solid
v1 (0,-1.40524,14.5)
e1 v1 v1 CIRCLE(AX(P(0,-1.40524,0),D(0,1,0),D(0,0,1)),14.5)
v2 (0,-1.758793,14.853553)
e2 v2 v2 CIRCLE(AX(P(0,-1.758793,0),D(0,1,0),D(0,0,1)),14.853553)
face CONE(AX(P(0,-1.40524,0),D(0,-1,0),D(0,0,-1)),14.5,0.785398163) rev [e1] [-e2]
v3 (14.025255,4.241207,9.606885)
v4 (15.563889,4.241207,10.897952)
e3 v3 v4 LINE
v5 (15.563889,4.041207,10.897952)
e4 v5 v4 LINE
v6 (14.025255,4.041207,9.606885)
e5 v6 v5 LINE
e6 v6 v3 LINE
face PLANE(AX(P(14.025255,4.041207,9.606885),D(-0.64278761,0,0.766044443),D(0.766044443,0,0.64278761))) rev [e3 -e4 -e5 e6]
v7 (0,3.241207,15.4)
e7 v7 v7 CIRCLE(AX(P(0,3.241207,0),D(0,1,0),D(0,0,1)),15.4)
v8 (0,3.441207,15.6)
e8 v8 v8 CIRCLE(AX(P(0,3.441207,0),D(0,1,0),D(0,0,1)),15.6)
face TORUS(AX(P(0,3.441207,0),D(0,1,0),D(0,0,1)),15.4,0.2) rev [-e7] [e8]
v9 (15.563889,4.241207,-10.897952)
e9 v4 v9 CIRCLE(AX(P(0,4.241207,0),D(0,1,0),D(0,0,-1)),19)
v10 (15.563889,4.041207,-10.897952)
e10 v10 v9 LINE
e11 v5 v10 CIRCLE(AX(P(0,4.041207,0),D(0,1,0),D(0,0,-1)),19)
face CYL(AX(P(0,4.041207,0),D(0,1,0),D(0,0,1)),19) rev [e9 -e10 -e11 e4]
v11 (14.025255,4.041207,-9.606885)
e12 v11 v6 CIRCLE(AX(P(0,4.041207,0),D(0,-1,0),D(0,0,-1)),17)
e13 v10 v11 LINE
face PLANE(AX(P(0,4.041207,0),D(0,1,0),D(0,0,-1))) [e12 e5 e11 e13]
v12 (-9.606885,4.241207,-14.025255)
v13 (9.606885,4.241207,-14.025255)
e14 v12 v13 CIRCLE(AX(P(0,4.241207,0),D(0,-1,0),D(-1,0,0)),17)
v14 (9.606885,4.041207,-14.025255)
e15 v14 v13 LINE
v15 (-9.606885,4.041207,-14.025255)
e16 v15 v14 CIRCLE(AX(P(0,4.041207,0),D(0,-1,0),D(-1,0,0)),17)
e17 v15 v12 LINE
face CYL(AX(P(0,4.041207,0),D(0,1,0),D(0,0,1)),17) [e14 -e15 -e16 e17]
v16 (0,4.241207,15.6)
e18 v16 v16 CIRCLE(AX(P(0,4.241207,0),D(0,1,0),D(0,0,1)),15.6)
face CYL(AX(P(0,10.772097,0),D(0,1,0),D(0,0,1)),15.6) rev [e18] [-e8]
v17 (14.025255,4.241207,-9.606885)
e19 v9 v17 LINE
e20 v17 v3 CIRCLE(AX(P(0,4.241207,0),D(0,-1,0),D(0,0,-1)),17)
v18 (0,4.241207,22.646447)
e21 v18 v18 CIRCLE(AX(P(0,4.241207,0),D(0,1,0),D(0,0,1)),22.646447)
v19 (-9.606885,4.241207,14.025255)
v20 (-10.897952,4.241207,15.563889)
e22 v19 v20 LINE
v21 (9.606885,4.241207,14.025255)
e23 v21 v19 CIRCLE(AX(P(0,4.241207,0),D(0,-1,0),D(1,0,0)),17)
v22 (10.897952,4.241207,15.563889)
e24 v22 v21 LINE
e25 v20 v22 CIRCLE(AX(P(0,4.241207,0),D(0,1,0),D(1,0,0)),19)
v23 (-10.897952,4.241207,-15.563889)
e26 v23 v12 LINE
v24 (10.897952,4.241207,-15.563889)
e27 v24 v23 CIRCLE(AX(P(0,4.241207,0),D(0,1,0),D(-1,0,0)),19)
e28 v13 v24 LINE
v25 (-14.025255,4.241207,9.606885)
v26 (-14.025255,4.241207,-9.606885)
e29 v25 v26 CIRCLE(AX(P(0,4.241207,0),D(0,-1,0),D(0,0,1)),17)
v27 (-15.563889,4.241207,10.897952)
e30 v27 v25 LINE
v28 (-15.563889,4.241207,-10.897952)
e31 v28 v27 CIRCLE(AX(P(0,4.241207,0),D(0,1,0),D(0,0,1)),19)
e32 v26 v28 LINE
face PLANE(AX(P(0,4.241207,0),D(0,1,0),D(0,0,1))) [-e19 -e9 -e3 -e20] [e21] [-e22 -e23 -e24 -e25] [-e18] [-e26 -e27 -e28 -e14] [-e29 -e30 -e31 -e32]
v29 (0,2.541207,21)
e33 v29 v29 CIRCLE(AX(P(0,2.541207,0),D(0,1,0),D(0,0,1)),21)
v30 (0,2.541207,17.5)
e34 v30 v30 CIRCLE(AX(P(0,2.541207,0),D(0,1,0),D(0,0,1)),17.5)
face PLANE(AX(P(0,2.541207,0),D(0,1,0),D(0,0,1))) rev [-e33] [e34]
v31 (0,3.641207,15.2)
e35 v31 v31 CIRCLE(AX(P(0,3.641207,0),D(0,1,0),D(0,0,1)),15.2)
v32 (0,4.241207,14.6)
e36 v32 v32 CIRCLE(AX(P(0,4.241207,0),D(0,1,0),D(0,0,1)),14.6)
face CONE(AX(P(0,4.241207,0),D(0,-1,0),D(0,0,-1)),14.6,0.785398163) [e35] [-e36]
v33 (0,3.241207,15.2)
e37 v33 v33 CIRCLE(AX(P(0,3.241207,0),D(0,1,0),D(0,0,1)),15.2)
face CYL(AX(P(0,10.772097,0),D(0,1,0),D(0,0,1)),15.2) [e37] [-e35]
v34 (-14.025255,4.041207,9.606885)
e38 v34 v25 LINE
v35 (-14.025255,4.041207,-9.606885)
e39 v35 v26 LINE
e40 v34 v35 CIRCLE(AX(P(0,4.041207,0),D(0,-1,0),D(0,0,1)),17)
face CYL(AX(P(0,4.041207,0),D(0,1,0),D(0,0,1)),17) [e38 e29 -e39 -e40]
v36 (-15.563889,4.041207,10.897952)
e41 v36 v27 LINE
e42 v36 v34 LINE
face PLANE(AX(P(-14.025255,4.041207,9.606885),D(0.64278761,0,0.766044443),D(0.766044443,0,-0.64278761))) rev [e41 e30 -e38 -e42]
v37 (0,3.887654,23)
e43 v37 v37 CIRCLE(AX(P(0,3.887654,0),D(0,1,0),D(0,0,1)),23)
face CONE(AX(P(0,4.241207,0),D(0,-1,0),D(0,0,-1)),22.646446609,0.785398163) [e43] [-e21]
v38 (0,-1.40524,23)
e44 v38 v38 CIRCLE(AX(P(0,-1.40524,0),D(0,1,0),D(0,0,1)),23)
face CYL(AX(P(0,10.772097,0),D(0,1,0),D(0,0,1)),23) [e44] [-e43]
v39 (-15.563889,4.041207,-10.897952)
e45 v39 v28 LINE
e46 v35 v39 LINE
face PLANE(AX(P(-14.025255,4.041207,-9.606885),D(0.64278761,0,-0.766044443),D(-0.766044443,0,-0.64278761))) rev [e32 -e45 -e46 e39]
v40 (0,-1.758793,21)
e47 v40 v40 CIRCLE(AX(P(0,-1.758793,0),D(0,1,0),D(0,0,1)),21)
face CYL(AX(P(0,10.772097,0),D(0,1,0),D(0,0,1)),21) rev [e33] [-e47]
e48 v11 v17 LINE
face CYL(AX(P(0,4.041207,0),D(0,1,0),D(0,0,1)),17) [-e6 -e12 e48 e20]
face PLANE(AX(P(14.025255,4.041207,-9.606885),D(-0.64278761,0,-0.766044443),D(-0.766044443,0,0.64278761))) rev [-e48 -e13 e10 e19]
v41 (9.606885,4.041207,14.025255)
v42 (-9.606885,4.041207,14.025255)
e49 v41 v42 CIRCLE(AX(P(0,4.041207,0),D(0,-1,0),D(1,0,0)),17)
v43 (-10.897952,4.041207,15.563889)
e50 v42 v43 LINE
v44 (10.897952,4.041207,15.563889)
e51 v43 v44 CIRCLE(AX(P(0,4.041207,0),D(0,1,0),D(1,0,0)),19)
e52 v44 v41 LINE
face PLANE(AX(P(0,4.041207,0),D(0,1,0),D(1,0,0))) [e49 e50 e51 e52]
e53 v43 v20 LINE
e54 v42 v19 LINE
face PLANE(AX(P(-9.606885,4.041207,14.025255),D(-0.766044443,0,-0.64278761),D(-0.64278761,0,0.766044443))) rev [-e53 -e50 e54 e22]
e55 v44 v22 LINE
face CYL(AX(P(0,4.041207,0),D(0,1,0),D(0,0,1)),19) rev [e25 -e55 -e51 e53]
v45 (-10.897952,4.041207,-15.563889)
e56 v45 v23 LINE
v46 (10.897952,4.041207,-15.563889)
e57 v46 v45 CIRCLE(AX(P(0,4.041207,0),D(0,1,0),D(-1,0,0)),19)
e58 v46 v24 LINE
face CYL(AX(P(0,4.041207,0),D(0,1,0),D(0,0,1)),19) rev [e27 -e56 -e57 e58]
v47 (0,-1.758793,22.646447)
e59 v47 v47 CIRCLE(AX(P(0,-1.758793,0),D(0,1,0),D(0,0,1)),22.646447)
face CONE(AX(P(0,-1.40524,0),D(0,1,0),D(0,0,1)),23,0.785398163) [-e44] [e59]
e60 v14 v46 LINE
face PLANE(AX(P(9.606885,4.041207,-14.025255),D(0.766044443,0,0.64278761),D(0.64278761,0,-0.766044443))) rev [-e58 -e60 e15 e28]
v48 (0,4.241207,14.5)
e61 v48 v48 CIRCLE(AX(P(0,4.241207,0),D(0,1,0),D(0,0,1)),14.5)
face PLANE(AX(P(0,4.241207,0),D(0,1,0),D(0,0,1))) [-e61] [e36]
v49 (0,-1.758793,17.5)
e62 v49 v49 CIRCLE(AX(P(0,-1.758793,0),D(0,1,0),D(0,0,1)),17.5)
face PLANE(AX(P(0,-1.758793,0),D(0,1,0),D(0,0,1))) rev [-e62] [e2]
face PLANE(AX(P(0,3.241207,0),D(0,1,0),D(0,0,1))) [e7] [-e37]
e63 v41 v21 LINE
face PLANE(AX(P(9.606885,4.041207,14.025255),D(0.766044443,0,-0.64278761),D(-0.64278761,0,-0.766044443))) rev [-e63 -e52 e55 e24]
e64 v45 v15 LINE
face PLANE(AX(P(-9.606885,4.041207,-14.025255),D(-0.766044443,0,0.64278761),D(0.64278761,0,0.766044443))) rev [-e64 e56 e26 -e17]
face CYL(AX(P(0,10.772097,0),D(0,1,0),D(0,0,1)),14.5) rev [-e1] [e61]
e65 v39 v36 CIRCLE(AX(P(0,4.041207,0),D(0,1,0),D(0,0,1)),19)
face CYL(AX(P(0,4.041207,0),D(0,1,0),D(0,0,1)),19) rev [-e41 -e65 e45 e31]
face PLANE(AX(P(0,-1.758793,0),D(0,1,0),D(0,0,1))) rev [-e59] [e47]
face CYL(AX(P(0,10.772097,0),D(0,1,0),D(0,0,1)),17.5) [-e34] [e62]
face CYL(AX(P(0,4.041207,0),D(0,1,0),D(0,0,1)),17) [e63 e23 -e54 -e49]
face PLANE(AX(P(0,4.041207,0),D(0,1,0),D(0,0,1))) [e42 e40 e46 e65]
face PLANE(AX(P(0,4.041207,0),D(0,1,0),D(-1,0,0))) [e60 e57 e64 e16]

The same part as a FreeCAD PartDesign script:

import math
import FreeCAD as App
import Part
import Sketcher
from FreeCAD import Vector
Q = App.Units.Quantity

doc = App.newDocument("Part")
body = doc.addObject("PartDesign::Body", "Body")

# Sketch on XY plane
sketch1 = body.newObject("Sketcher::SketchObject", "Sketch")
sketch1.AttachmentSupport = (doc.getObject("XY_Plane"), [""])
sketch1.MapMode = "FlatFace"
sketch1.addGeometry(Part.ArcOfCircle(Part.Circle(Vector(15.4, 3.44, 0), Vector(0, 0, 1), 0.2), math.radians(-90), math.radians(0)), False)
sketch1.addGeometry(Part.LineSegment(Vector(15.4, 3.24, 0), Vector(15.2, 3.24, 0)), False)
sketch1.addGeometry(Part.LineSegment(Vector(15.2, 3.24, 0), Vector(15.2, 3.64, 0)), False)
sketch1.addGeometry(Part.LineSegment(Vector(15.2, 3.64, 0), Vector(14.6, 4.24, 0)), False)
sketch1.addGeometry(Part.LineSegment(Vector(14.6, 4.24, 0), Vector(14.5, 4.24, 0)), False)
sketch1.addGeometry(Part.LineSegment(Vector(14.5, 4.24, 0), Vector(14.5, -1.41, 0)), False)
sketch1.addGeometry(Part.LineSegment(Vector(14.5, -1.41, 0), Vector(14.85, -1.76, 0)), False)
sketch1.addGeometry(Part.LineSegment(Vector(14.85, -1.76, 0), Vector(17.5, -1.76, 0)), False)
sketch1.addGeometry(Part.LineSegment(Vector(17.5, -1.76, 0), Vector(17.5, 2.54, 0)), False)
sketch1.addGeometry(Part.LineSegment(Vector(17.5, 2.54, 0), Vector(21, 2.54, 0)), False)
sketch1.addGeometry(Part.LineSegment(Vector(21, 2.54, 0), Vector(21, -1.76, 0)), False)
sketch1.addGeometry(Part.LineSegment(Vector(21, -1.76, 0), Vector(22.65, -1.76, 0)), False)
sketch1.addGeometry(Part.LineSegment(Vector(22.65, -1.76, 0), Vector(23, -1.41, 0)), False)
sketch1.addGeometry(Part.LineSegment(Vector(23, -1.41, 0), Vector(23, 3.89, 0)), False)
sketch1.addGeometry(Part.LineSegment(Vector(23, 3.89, 0), Vector(22.65, 4.24, 0)), False)
sketch1.addGeometry(Part.LineSegment(Vector(22.65, 4.24, 0), Vector(15.6, 4.24, 0)), False)
sketch1.addGeometry(Part.LineSegment(Vector(15.6, 4.24, 0), Vector(15.6, 3.44, 0)), False)
sketch1.addConstraint(Sketcher.Constraint("Tangent", 0, 1, 1, 1))
sketch1.addConstraint(Sketcher.Constraint("Coincident", 1, 2, 2, 1))
sketch1.addConstraint(Sketcher.Constraint("Coincident", 2, 2, 3, 1))
sketch1.addConstraint(Sketcher.Constraint("Coincident", 3, 2, 4, 1))
sketch1.addConstraint(Sketcher.Constraint("Coincident", 4, 2, 5, 1))
sketch1.addConstraint(Sketcher.Constraint("Coincident", 5, 2, 6, 1))
sketch1.addConstraint(Sketcher.Constraint("Coincident", 6, 2, 7, 1))
sketch1.addConstraint(Sketcher.Constraint("Coincident", 7, 2, 8, 1))
sketch1.addConstraint(Sketcher.Constraint("Coincident", 8, 2, 9, 1))
sketch1.addConstraint(Sketcher.Constraint("Coincident", 9, 2, 10, 1))
sketch1.addConstraint(Sketcher.Constraint("Coincident", 10, 2, 11, 1))
sketch1.addConstraint(Sketcher.Constraint("Coincident", 11, 2, 12, 1))
sketch1.addConstraint(Sketcher.Constraint("Coincident", 12, 2, 13, 1))
sketch1.addConstraint(Sketcher.Constraint("Coincident", 13, 2, 14, 1))
sketch1.addConstraint(Sketcher.Constraint("Coincident", 14, 2, 15, 1))
sketch1.addConstraint(Sketcher.Constraint("Coincident", 15, 2, 16, 1))
sketch1.addConstraint(Sketcher.Constraint("Tangent", 16, 2, 0, 2))
sketch1.addConstraint(Sketcher.Constraint("Horizontal", 1))
sketch1.addConstraint(Sketcher.Constraint("Vertical", 2))
sketch1.addConstraint(Sketcher.Constraint("Horizontal", 4))
sketch1.addConstraint(Sketcher.Constraint("Vertical", 5))
sketch1.addConstraint(Sketcher.Constraint("Horizontal", 7))
sketch1.addConstraint(Sketcher.Constraint("Vertical", 8))
sketch1.addConstraint(Sketcher.Constraint("Horizontal", 9))
sketch1.addConstraint(Sketcher.Constraint("Vertical", 10))
sketch1.addConstraint(Sketcher.Constraint("Horizontal", 11))
sketch1.addConstraint(Sketcher.Constraint("Vertical", 13))
sketch1.addConstraint(Sketcher.Constraint("Horizontal", 15))
sketch1.addConstraint(Sketcher.Constraint("Vertical", 16))
sketch1.addConstraint(Sketcher.Constraint("Parallel", 3, 6))
sketch1.addConstraint(Sketcher.Constraint("Perpendicular", 6, 12))
sketch1.addConstraint(Sketcher.Constraint("Perpendicular", 12, 14))
sketch1.addConstraint(Sketcher.Constraint("Horizontal", 7, 2, 10, 2))
sketch1.addConstraint(Sketcher.Constraint("Horizontal", 5, 2, 12, 2))
sketch1.addConstraint(Sketcher.Constraint("Horizontal", 4, 2, 14, 2))
sketch1.addConstraint(Sketcher.Constraint("Vertical", 11, 2, 14, 2))
sketch1.addConstraint(Sketcher.Constraint("Equal", 6, 12))
sketch1.addConstraint(Sketcher.Constraint("Radius", 0, Q("0.2 mm")))
sketch1.addConstraint(Sketcher.Constraint("DistanceX", 1, 2, 1, 1, Q("0.2 mm")))
sketch1.addConstraint(Sketcher.Constraint("DistanceX", 4, 2, 4, 1, Q("0.1 mm")))
sketch1.addConstraint(Sketcher.Constraint("DistanceX", 9, 1, 9, 2, Q("3.5 mm")))
sketch1.addConstraint(Sketcher.Constraint("DistanceY", 2, 1, 2, 2, Q("0.4 mm")))
sketch1.addConstraint(Sketcher.Constraint("DistanceY", 8, 1, 8, 2, Q("4.3 mm")))
sketch1.addConstraint(Sketcher.Constraint("DistanceY", 16, 2, 16, 1, Q("0.8 mm")))
sketch1.addConstraint(Sketcher.Constraint("DistanceX", -1, 1, 9, 2, Q("21 mm")))
sketch1.addConstraint(Sketcher.Constraint("DistanceX", -1, 1, 12, 2, Q("23 mm")))
sketch1.addConstraint(Sketcher.Constraint("DistanceY", 6, 2, 1, 2, Q("5 mm")))
sketch1.addConstraint(Sketcher.Constraint("DistanceX", 5, 2, 7, 2, Q("3 mm")))
sketch1.addConstraint(Sketcher.Constraint("Distance", 6, Q("0.5 mm")))
sketch1.addConstraint(Sketcher.Constraint("DistanceY", 5, 2, -1, 1, Q("1.40524 mm")))
revolution = body.newObject("PartDesign::Revolution", "Revolution")
revolution.Profile = sketch1
revolution.ReferenceAxis = (sketch1, ["V_Axis"])
revolution.Angle = 360

# Sketch on XZ plane
sketch2 = body.newObject("Sketcher::SketchObject", "Sketch001")
sketch2.AttachmentSupport = (doc.getObject("XZ_Plane"), [""])
sketch2.MapMode = "FlatFace"
sketch2.AttachmentOffset = App.Placement(Vector(0, 0, -4.241207), App.Rotation())
sketch2.addGeometry(Part.LineSegment(Vector(-15.6, 10.9, 0), Vector(-14, 9.6, 0)), False)
sketch2.addGeometry(Part.ArcOfCircle(Part.Circle(Vector(0, 0, 0), Vector(0, 0, 1), 17), math.radians(146), math.radians(214)), False)
sketch2.addGeometry(Part.LineSegment(Vector(-14, -9.6, 0), Vector(-15.6, -10.9, 0)), False)
sketch2.addGeometry(Part.ArcOfCircle(Part.Circle(Vector(0, 0, 0), Vector(0, 0, 1), 19), math.radians(145), math.radians(215)), False)
sketch2.addConstraint(Sketcher.Constraint("Coincident", 0, 2, 1, 1))
sketch2.addConstraint(Sketcher.Constraint("Coincident", 1, 2, 2, 1))
sketch2.addConstraint(Sketcher.Constraint("Coincident", 2, 2, 3, 2))
sketch2.addConstraint(Sketcher.Constraint("Coincident", 3, 1, 0, 1))
sketch2.addConstraint(Sketcher.Constraint("Coincident", 1, 3, -1, 1))
sketch2.addConstraint(Sketcher.Constraint("Coincident", 3, 3, -1, 1))
sketch2.addConstraint(Sketcher.Constraint("Vertical", 0, 2, 1, 2))
sketch2.addConstraint(Sketcher.Constraint("Vertical", 2, 2, 3, 1))
sketch2.addConstraint(Sketcher.Constraint("Radius", 1, Q("17 mm")))
sketch2.addConstraint(Sketcher.Constraint("Radius", 3, Q("19 mm")))
sketch2.addConstraint(Sketcher.Constraint("Angle", 0, Q("-40 deg")))
sketch2.addConstraint(Sketcher.Constraint("DistanceX", 2, 2, -1, 1, Q("15.563889 mm")))
pocket1 = body.newObject("PartDesign::Pocket", "Pocket")
pocket1.Profile = sketch2
pocket1.Length = 0.2
pocket1.Reversed = True
doc.recompute()

polarpattern = body.newObject("PartDesign::PolarPattern", "PolarPattern")
polarpattern.Originals = [pocket1]
polarpattern.Axis = (doc.getObject("Y_Axis"), [""])
polarpattern.Angle = 360
polarpattern.Occurrences = 4
body.Tip = polarpattern

doc.recompute()
